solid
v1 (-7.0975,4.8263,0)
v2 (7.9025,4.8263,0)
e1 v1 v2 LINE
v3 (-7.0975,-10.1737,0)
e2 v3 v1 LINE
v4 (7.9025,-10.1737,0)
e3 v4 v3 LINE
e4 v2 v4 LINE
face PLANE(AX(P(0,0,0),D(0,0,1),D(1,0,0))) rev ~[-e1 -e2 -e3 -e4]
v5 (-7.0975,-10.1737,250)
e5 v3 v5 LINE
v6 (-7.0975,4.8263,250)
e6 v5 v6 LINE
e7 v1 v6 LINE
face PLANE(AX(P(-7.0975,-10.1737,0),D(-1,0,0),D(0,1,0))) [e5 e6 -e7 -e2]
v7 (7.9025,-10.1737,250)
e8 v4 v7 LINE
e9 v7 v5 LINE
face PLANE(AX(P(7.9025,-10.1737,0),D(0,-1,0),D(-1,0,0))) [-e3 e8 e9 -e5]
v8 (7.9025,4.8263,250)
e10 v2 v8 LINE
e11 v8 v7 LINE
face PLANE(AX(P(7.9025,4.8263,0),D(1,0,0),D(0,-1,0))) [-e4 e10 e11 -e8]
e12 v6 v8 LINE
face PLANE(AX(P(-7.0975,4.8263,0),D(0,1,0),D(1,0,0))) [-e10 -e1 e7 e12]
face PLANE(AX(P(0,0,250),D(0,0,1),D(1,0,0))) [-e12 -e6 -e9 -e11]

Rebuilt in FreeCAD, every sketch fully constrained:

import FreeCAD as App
import Part
import Sketcher
Q = App.Units.Quantity

doc = App.newDocument("Part")
body = doc.addObject("PartDesign::Body", "Body")

sketch1 = body.newObject("Sketcher::SketchObject", "Sketch")
sketch1.AttachmentSupport = (doc.getObject("XY_Plane"), [""])
sketch1.MapMode = "FlatFace"
sketch1.addGeometry([
    Part.LineSegment(App.Vector(8, 5, 0), App.Vector(-7, 5, 0)),
    Part.LineSegment(App.Vector(-7, 5, 0), App.Vector(-7, -10, 0)),
    Part.LineSegment(App.Vector(-7, -10, 0), App.Vector(8, -10, 0)),
    Part.LineSegment(App.Vector(8, -10, 0), App.Vector(8, 5, 0)),
], False)
sketch1.addConstraint([
    Sketcher.Constraint("Coincident", 0, 2, 1, 1),
    Sketcher.Constraint("Coincident", 1, 2, 2, 1),
    Sketcher.Constraint("Coincident", 2, 2, 3, 1),
    Sketcher.Constraint("Coincident", 3, 2, 0, 1),
    Sketcher.Constraint("Horizontal", 0),
    Sketcher.Constraint("Vertical", 1),
    Sketcher.Constraint("Horizontal", 2),
    Sketcher.Constraint("Vertical", 3),
    Sketcher.Constraint("Equal", 2, 1),
    Sketcher.Constraint("DistanceX", 0, 2, 0, 1, Q("15 mm")),
    Sketcher.Constraint("DistanceX", 0, 2, -1, 1, Q("7.0975 mm")),
    Sketcher.Constraint("DistanceY", -1, 1, 0, 2, Q("4.8263 mm")),
])
pad1 = body.newObject("PartDesign::Pad", "Pad")
pad1.Profile = sketch1
pad1.Length = 250

doc.recompute()
